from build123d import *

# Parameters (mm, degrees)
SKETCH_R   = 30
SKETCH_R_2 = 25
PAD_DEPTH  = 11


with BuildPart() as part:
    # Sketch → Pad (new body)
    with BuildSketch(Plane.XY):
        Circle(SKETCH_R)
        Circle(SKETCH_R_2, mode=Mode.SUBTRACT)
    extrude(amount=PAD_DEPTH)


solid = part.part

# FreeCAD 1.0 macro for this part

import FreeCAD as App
import Part
import Sketcher
from FreeCAD import Vector
Q = App.Units.Quantity

doc = App.newDocument("Part")
body = doc.addObject("PartDesign::Body", "Body")

# Sketch on XY plane
sketch1 = body.newObject("Sketcher::SketchObject", "Sketch")
sketch1.AttachmentSupport = (doc.getObject("XY_Plane"), [""])
sketch1.MapMode = "FlatFace"
sketch1.addGeometry([
    Part.Circle(Vector(0, 0, 0), Vector(0, 0, 1), 30),
    Part.Circle(Vector(0, 0, 0), Vector(0, 0, 1), 25),
], False)
sketch1.addConstraint([
    Sketcher.Constraint("Coincident", 0, 3, -1, 1),
    Sketcher.Constraint("Coincident", 1, 3, -1, 1),
    Sketcher.Constraint("Diameter", 0, Q("60 mm")),
    Sketcher.Constraint("Diameter", 1, Q("50 mm")),
])
pad1 = body.newObject("PartDesign::Pad", "Pad")
pad1.Profile = sketch1
pad1.Length = 11

doc.recompute()
